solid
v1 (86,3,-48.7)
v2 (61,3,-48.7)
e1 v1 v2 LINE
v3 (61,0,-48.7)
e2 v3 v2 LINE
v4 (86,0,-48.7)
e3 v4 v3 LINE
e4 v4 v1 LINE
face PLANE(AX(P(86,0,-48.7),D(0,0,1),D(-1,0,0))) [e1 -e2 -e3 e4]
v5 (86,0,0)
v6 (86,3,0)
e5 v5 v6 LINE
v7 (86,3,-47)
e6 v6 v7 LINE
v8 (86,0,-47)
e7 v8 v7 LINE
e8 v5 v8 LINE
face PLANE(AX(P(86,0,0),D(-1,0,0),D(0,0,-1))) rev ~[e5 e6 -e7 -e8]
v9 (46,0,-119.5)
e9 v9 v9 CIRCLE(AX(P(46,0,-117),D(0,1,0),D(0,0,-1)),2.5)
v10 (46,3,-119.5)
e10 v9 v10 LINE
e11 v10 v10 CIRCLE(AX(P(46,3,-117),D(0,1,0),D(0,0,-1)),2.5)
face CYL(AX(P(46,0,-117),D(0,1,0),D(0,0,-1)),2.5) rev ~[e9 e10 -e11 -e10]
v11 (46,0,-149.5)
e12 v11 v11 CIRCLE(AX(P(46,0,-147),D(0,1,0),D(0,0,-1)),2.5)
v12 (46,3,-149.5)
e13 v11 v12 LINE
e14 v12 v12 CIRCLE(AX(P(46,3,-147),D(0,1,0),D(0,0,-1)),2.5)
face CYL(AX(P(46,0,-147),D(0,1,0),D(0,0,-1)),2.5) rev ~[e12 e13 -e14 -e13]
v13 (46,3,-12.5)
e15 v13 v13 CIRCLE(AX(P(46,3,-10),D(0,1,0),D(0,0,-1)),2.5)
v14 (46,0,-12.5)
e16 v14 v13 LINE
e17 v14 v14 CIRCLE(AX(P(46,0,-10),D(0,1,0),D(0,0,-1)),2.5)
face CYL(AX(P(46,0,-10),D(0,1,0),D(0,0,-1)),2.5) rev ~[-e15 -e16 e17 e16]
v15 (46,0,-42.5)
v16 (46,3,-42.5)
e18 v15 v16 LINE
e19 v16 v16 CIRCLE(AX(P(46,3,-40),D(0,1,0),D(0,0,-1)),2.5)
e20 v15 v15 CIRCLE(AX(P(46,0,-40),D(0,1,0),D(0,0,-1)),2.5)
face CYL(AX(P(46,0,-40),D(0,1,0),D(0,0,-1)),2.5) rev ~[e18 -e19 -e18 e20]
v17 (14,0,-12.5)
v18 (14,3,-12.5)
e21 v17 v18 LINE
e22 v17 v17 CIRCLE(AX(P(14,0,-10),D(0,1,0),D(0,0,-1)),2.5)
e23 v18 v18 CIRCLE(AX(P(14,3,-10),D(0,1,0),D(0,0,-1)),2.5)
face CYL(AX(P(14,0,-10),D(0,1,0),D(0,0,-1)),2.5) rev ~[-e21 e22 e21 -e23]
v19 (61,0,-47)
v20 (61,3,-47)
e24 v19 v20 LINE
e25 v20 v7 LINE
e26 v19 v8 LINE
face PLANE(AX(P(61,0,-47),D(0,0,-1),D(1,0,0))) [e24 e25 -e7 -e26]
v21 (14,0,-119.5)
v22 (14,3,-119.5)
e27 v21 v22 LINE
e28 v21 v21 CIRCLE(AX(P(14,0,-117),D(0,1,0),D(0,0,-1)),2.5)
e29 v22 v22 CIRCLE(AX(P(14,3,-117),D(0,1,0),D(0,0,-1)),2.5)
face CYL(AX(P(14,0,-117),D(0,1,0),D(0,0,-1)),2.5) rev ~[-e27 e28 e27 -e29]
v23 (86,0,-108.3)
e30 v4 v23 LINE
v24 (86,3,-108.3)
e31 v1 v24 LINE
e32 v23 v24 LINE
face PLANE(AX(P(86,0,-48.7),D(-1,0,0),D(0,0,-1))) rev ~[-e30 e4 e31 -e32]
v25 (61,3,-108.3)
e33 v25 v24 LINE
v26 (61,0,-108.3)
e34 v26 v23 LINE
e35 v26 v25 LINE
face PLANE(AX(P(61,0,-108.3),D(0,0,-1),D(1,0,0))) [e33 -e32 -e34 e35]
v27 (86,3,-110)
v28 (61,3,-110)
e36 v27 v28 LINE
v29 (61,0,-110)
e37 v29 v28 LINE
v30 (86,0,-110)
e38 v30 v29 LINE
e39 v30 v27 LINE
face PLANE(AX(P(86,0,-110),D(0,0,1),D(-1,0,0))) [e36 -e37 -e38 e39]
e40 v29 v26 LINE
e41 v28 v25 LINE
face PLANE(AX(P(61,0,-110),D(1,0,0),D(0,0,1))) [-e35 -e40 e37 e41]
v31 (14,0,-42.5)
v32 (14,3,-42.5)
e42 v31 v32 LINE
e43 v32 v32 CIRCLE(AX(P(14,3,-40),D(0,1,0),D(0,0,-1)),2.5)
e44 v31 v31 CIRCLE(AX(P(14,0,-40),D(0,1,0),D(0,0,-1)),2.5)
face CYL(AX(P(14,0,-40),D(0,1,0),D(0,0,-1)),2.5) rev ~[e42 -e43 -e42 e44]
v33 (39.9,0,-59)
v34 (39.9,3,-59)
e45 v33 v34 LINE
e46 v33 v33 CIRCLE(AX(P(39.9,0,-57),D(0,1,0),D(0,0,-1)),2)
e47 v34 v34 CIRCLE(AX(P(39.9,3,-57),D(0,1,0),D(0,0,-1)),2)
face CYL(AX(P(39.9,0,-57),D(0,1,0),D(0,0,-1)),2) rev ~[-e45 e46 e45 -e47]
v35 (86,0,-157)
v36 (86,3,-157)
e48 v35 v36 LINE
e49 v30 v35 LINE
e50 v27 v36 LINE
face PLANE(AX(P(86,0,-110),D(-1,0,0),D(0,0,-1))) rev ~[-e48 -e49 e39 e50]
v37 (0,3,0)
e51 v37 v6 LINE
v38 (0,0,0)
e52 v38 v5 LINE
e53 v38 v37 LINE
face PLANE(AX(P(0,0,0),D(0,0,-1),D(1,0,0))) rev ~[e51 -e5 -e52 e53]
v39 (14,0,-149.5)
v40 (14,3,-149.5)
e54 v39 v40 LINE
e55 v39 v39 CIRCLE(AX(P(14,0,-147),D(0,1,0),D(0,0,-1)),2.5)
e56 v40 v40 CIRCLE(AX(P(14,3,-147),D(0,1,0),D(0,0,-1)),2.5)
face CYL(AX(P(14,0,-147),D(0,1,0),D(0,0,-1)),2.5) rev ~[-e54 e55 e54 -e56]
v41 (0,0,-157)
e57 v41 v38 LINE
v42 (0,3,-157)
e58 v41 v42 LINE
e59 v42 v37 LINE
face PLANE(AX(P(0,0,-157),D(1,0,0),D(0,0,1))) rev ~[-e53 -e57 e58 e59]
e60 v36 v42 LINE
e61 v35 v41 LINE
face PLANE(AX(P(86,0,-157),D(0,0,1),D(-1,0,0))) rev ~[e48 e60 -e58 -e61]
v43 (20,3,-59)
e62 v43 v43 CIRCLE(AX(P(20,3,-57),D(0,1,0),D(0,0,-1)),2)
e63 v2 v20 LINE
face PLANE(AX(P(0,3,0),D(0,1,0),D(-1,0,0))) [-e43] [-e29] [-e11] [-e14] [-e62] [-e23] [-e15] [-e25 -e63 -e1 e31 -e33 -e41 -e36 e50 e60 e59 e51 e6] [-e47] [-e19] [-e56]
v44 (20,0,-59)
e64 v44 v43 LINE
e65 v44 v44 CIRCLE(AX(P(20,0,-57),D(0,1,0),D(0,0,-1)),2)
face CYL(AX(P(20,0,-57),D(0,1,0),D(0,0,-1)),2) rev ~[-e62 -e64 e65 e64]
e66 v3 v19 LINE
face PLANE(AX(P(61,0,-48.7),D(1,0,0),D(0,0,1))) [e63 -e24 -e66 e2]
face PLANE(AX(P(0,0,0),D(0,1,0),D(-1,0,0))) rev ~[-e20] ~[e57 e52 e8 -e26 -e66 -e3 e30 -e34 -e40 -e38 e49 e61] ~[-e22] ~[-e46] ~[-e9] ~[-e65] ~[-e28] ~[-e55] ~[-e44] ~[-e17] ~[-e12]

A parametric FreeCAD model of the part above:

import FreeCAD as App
import Part
import Sketcher

V = App.Vector


def add_polygon(sketch, points):
    """Adds a closed chain of lines whose ends are joined by coincident constraints."""
    first, n = sketch.GeometryCount, len(points)
    for a, b in zip(points, points[1:] + points[:1]):
        sketch.addGeometry(Part.LineSegment(App.Vector(*a, 0), App.Vector(*b, 0)), False)
    for i in range(n):
        sketch.addConstraint(Sketcher.Constraint("Coincident", first + i, 2, first + (i + 1) % n, 1))

doc = App.newDocument("Part")
params = doc.addObject("Spreadsheet::Sheet", "Params")
for row, (alias, value) in enumerate([
    ("sketch1_width", "86 mm"),
    ("sketch1_width2", "25 mm"),
    ("sketch1_height", "157 mm"),
    ("sketch1_height2", "47 mm"),
    ("sketch1_height3", "1.7 mm"),
    ("pad1_length", "3 mm"),
    ("sketch2_diameter", "5 mm"),
    ("hole_diameter", "5 mm"),
    ("sketch3_diameter", "4 mm"),
    ("hole2_diameter", "4 mm"),
], start=1):
    params.set(f"A{row}", alias)
    params.set(f"B{row}", "=" + value)
    params.setAlias(f"B{row}", alias)

body = doc.addObject("PartDesign::Body", "Body")

sketch1 = body.newObject("Sketcher::SketchObject", "Sketch")
sketch1.AttachmentSupport = (doc.getObject("XZ_Plane"), [""])
sketch1.MapMode = "FlatFace"
add_polygon(sketch1, [(0, -157), (0, 0), (86, 0), (86, -47), (61, -47), (61, -48.7), (86, -48.7), (86, -108.3), (61, -108.3), (61, -110), (86, -110), (86, -157)])
sketch1.addConstraint([
    Sketcher.Constraint("Vertical", 0),
    Sketcher.Constraint("Horizontal", 1),
    Sketcher.Constraint("Vertical", 2),
    Sketcher.Constraint("Horizontal", 3),
    Sketcher.Constraint("Vertical", 4),
    Sketcher.Constraint("Horizontal", 5),
    Sketcher.Constraint("Vertical", 6),
    Sketcher.Constraint("Horizontal", 7),
    Sketcher.Constraint("Vertical", 8),
    Sketcher.Constraint("Horizontal", 9),
    Sketcher.Constraint("Vertical", 10),
    Sketcher.Constraint("Horizontal", 11),
    Sketcher.Constraint("Coincident", 0, 2, -1, 1),
    Sketcher.Constraint("Vertical", 2, 2, 5, 2),
    Sketcher.Constraint("Vertical", 4, 2, 7, 2),
    Sketcher.Constraint("Vertical", 6, 2, 9, 2),
    Sketcher.Constraint("Equal", 4, 8),
    Sketcher.Constraint("Equal", 2, 10),
    Sketcher.Constraint("DistanceX", 1, 1, 1, 2, 86.0),
    Sketcher.Constraint("DistanceX", 3, 2, 3, 1, 25.0),
    Sketcher.Constraint("DistanceY", 0, 1, 0, 2, 157.0),
    Sketcher.Constraint("DistanceY", 2, 2, 2, 1, 47.0),
    Sketcher.Constraint("DistanceY", 4, 2, 4, 1, 1.7),
])
sketch1.setExpression("Constraints[30]", "Params.sketch1_width")
sketch1.setExpression("Constraints[31]", "Params.sketch1_width2")
sketch1.setExpression("Constraints[32]", "Params.sketch1_height")
sketch1.setExpression("Constraints[33]", "Params.sketch1_height2")
sketch1.setExpression("Constraints[34]", "Params.sketch1_height3")
pad1 = body.newObject("PartDesign::Pad", "Pad")
pad1.Profile = sketch1
pad1.setExpression("Length", "Params.pad1_length")
pad1.Reversed = True

sketch2 = body.newObject("Sketcher::SketchObject", "Sketch001")
sketch2.AttachmentSupport = (doc.getObject("XZ_Plane"), [""])
sketch2.MapMode = "FlatFace"
sketch2.addGeometry([
    Part.Circle(V(14, -40, 0), V(0, 0, 1), 2.5),
    Part.Circle(V(46, -40, 0), V(0, 0, 1), 2.5),
    Part.Circle(V(46, -10, 0), V(0, 0, 1), 2.5),
    Part.Circle(V(14, -10, 0), V(0, 0, 1), 2.5),
    Part.Circle(V(14, -147, 0), V(0, 0, 1), 2.5),
    Part.Circle(V(46, -117, 0), V(0, 0, 1), 2.5),
    Part.Circle(V(14, -117, 0), V(0, 0, 1), 2.5),
    Part.Circle(V(46, -147, 0), V(0, 0, 1), 2.5),
], False)
sketch2.addConstraint([
    Sketcher.Constraint("Equal", 0, 1),
    Sketcher.Constraint("Equal", 1, 2),
    Sketcher.Constraint("Equal", 2, 3),
    Sketcher.Constraint("Equal", 3, 4),
    Sketcher.Constraint("Equal", 4, 5),
    Sketcher.Constraint("Equal", 5, 6),
    Sketcher.Constraint("Equal", 6, 7),
    Sketcher.Constraint("Horizontal", 0, 3, 1, 3),
    Sketcher.Constraint("Horizontal", 2, 3, 3, 3),
    Sketcher.Constraint("Horizontal", 5, 3, 6, 3),
    Sketcher.Constraint("Horizontal", 4, 3, 7, 3),
    Sketcher.Constraint("Vertical", 1, 3, 2, 3),
    Sketcher.Constraint("Vertical", 0, 3, 3, 3),
    Sketcher.Constraint("Vertical", 3, 3, 4, 3),
    Sketcher.Constraint("Vertical", 2, 3, 5, 3),
    Sketcher.Constraint("Vertical", 4, 3, 6, 3),
    Sketcher.Constraint("Vertical", 5, 3, 7, 3),
    Sketcher.Constraint("Diameter", 0, 5.0),
    Sketcher.Constraint("DistanceX", -1, 1, 0, 3, 14.0),
    Sketcher.Constraint("DistanceY", 0, 3, -1, 1, 40.0),
    Sketcher.Constraint("DistanceX", -1, 1, 1, 3, 46.0),
    Sketcher.Constraint("DistanceY", 2, 3, -1, 1, 10.0),
    Sketcher.Constraint("DistanceY", 4, 3, -1, 1, 147.0),
    Sketcher.Constraint("DistanceY", 5, 3, -1, 1, 117.0),
])
sketch2.setExpression("Constraints[17]", "Params.sketch2_diameter")
doc.recompute()
hole = body.newObject("PartDesign::Hole", "Hole")
hole.Profile = sketch2
hole.ThreadType = "None"
hole.setExpression("Diameter", "Params.hole_diameter")
hole.DepthType = "ThroughAll"

sketch3 = body.newObject("Sketcher::SketchObject", "Sketch002")
sketch3.AttachmentSupport = (doc.getObject("XZ_Plane"), [""])
sketch3.MapMode = "FlatFace"
sketch3.addGeometry([
    Part.Circle(V(20, -57, 0), V(0, 0, 1), 2),
    Part.Circle(V(39.9, -57, 0), V(0, 0, 1), 2),
], False)
sketch3.addConstraint([
    Sketcher.Constraint("Equal", 0, 1),
    Sketcher.Constraint("Horizontal", 0, 3, 1, 3),
    Sketcher.Constraint("Diameter", 0, 4.0),
    Sketcher.Constraint("DistanceX", -1, 1, 0, 3, 20.0),
    Sketcher.Constraint("DistanceY", 0, 3, -1, 1, 57.0),
    Sketcher.Constraint("DistanceX", -1, 1, 1, 3, 39.9),
])
sketch3.setExpression("Constraints[2]", "Params.sketch3_diameter")
doc.recompute()
hole2 = body.newObject("PartDesign::Hole", "Hole001")
hole2.Profile = sketch3
hole2.ThreadType = "None"
hole2.setExpression("Diameter", "Params.hole2_diameter")
hole2.DepthType = "ThroughAll"

doc.recompute()
